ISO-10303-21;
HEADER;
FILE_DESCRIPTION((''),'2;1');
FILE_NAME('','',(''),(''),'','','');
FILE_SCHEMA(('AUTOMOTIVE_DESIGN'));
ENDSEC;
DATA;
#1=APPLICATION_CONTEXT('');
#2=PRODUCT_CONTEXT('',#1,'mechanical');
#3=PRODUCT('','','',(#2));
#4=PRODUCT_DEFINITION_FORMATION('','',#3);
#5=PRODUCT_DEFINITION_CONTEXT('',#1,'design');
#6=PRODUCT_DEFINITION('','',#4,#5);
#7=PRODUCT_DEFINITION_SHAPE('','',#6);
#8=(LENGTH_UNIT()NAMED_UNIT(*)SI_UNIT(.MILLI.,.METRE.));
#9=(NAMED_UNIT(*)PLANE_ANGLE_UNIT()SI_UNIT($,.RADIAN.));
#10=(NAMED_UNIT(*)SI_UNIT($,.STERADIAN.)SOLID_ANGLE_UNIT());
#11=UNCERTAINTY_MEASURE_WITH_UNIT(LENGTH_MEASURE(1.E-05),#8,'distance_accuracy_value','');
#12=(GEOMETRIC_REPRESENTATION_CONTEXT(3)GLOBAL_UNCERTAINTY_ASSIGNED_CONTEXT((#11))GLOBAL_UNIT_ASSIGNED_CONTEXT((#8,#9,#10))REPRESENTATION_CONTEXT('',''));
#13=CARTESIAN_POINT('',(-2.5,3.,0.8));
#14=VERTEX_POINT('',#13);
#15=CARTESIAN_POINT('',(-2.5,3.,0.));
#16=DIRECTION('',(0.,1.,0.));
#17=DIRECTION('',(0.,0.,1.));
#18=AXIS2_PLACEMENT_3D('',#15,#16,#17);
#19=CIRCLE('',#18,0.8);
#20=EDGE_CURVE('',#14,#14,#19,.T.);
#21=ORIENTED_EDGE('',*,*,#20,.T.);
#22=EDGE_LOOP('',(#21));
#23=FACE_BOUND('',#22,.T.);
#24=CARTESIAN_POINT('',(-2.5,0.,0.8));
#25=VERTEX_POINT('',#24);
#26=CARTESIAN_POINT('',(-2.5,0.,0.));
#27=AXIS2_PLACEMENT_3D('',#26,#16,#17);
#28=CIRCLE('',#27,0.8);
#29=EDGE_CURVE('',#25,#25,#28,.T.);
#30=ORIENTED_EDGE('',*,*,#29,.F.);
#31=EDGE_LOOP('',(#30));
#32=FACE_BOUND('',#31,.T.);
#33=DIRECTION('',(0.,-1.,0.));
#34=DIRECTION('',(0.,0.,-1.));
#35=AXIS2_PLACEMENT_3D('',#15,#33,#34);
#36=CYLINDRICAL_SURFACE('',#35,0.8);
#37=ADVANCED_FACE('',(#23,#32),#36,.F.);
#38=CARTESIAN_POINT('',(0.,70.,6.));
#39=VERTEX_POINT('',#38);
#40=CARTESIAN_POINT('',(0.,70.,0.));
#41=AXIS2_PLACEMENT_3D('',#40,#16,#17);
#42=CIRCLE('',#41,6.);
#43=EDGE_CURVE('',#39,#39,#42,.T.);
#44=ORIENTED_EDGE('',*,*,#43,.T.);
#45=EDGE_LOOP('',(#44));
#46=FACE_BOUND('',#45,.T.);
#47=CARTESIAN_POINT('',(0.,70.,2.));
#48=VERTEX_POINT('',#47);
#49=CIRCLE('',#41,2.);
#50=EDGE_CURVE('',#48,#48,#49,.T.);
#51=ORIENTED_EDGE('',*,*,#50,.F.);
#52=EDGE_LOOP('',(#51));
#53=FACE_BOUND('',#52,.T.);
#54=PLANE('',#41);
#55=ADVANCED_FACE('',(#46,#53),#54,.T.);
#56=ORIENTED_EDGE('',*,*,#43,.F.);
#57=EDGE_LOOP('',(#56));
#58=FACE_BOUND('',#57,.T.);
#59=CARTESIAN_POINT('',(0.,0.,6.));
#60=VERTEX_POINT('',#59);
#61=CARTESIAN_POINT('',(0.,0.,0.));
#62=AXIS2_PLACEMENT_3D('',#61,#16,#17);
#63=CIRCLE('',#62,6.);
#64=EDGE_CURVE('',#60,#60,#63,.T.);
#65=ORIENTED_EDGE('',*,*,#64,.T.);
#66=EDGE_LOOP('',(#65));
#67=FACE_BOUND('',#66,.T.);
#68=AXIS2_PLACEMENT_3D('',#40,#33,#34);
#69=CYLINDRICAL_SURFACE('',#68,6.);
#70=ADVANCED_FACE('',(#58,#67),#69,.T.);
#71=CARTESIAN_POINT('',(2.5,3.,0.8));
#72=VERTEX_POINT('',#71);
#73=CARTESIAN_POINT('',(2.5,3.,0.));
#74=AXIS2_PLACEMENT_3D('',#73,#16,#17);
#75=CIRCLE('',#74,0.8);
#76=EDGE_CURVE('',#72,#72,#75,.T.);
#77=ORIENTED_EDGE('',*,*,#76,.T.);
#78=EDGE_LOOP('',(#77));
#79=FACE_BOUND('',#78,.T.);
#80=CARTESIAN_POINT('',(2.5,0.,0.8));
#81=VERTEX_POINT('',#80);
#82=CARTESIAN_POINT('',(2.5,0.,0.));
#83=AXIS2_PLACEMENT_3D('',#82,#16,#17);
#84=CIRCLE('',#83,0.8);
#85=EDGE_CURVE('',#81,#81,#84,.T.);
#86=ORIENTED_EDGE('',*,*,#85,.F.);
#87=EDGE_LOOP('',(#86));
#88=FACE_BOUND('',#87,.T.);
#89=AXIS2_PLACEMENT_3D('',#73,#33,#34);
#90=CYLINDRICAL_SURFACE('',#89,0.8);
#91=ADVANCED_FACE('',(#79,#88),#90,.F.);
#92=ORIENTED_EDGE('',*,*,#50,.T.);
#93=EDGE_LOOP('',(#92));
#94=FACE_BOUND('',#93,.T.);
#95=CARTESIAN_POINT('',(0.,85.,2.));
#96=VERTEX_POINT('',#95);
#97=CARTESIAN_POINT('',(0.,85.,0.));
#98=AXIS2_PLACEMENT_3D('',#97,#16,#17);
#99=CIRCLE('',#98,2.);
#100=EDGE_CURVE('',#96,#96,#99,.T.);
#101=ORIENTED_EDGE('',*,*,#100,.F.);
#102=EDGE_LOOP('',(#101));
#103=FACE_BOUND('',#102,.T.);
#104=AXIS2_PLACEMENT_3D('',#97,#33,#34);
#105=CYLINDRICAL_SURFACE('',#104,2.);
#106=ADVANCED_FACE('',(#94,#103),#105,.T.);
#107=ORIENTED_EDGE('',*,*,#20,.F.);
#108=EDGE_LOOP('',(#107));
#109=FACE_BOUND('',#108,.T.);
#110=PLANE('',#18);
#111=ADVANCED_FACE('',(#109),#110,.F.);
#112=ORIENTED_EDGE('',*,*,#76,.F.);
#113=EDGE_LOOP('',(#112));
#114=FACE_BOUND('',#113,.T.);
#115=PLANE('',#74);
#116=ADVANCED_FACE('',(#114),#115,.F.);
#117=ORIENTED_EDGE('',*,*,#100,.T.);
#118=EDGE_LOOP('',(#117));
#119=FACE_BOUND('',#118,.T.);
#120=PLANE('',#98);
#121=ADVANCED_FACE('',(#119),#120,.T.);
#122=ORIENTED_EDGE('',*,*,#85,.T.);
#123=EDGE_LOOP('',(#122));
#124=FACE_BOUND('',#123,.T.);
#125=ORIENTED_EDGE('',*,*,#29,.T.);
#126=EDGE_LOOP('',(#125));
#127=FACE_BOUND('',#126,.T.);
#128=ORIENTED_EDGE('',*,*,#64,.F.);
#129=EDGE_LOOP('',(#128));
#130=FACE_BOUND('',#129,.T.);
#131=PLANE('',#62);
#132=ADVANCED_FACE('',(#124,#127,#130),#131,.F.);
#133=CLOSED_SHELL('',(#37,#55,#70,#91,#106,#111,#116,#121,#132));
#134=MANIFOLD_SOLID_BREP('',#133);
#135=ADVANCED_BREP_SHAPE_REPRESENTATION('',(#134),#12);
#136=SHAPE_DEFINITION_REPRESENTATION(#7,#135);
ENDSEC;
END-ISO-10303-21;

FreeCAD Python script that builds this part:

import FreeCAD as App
import Part
import Sketcher
Q = App.Units.Quantity

doc = App.newDocument("Part")
body = doc.addObject("PartDesign::Body", "Body")

# Sketch on XZ plane
sketch1 = doc.addObject("Sketcher::SketchObject", "Sketch")
body.addObject(sketch1)
sketch1.AttachmentSupport = (doc.XZ_Plane, [""])
sketch1.MapMode = "FlatFace"
sketch1.addGeometry(Part.Circle(App.Vector(0, 0, 0), App.Vector(0, 0, 1), 6), False)
sketch1.addConstraint(Sketcher.Constraint("Coincident", 0, 3, -1, 1))
sketch1.addConstraint(Sketcher.Constraint("Diameter", 0, Q("12 mm")))
pad1 = doc.addObject("PartDesign::Pad", "Pad")
body.addObject(pad1)
pad1.Profile = sketch1
pad1.Length = 70
pad1.Reversed = True

# Sketch on XZ plane
sketch2 = doc.addObject("Sketcher::SketchObject", "Sketch001")
body.addObject(sketch2)
sketch2.AttachmentSupport = (doc.XZ_Plane, [""])
sketch2.MapMode = "FlatFace"
sketch2.addGeometry(Part.Circle(App.Vector(-2.5, 0, 0), App.Vector(0, 0, 1), 0.8), False)
sketch2.addGeometry(Part.Circle(App.Vector(2.5, 0, 0), App.Vector(0, 0, 1), 0.8), False)
sketch2.addConstraint(Sketcher.Constraint("Equal", 0, 1))
sketch2.addConstraint(Sketcher.Constraint("Symmetric", 0, 3, 1, 3, -1, 1))
sketch2.addConstraint(Sketcher.Constraint("PointOnObject", 0, 3, -1))
sketch2.addConstraint(Sketcher.Constraint("Diameter", 0, Q("1.6 mm")))
sketch2.addConstraint(Sketcher.Constraint("DistanceX", 0, 3, 1, 3, Q("5 mm")))
pocket1 = doc.addObject("PartDesign::Pocket", "Pocket")
body.addObject(pocket1)
pocket1.Profile = sketch2
pocket1.Length = 3

# Sketch on XZ plane
sketch3 = doc.addObject("Sketcher::SketchObject", "Sketch002")
body.addObject(sketch3)
sketch3.AttachmentSupport = (doc.XZ_Plane, [""])
sketch3.MapMode = "FlatFace"
sketch3.AttachmentOffset = App.Placement(App.Vector(0, 0, -70), App.Rotation())
sketch3.addGeometry(Part.Circle(App.Vector(0, 0, 0), App.Vector(0, 0, 1), 2), False)
sketch3.addConstraint(Sketcher.Constraint("Coincident", 0, 3, -1, 1))
sketch3.addConstraint(Sketcher.Constraint("Diameter", 0, Q("4 mm")))
pad2 = doc.addObject("PartDesign::Pad", "Pad001")
body.addObject(pad2)
pad2.Profile = sketch3
pad2.Length = 15
pad2.Reversed = True

doc.recompute()
